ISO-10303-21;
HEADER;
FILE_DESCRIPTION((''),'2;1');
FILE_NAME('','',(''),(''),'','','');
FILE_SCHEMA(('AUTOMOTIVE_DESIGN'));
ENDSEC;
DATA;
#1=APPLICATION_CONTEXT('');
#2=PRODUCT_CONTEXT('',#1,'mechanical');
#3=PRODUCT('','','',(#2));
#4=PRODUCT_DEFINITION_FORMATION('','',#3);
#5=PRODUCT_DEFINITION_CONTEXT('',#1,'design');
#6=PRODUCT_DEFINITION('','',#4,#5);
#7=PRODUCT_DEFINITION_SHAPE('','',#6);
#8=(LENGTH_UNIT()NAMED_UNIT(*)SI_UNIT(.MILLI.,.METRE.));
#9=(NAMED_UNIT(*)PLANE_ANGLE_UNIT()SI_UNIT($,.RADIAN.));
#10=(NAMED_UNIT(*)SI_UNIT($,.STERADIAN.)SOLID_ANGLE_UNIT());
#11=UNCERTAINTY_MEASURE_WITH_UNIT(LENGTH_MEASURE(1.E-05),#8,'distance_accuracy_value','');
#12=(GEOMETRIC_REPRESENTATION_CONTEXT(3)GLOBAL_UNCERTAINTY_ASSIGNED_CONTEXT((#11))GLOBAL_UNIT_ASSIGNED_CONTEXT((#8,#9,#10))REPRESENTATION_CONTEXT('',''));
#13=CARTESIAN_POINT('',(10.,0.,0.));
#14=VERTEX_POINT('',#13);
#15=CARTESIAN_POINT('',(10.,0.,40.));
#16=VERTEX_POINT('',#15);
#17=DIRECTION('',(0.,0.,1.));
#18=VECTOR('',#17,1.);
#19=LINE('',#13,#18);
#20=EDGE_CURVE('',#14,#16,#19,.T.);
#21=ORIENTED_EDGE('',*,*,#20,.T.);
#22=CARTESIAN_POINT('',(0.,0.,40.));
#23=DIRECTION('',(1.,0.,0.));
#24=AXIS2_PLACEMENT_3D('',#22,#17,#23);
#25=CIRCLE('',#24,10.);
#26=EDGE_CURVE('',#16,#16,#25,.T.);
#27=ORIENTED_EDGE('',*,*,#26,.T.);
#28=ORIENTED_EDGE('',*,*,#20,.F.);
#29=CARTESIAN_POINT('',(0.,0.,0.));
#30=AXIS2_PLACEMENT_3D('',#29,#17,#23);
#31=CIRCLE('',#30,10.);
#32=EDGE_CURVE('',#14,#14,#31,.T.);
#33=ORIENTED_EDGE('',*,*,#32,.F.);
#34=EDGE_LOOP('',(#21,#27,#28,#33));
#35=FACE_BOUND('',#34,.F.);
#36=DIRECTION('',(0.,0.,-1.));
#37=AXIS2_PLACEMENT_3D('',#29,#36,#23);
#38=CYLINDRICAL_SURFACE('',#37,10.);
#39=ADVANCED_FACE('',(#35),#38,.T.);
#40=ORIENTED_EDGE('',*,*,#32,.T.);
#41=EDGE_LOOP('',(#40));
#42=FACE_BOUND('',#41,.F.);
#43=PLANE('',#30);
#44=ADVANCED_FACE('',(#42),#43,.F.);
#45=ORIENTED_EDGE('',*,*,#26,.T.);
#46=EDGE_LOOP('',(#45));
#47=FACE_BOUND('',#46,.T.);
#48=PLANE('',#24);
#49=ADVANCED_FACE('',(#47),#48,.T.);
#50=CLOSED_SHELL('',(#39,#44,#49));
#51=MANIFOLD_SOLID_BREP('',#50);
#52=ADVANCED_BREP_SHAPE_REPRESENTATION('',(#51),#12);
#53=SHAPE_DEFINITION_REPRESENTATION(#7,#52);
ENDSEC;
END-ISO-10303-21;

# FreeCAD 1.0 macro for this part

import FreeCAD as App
import Part
import Sketcher
Q = App.Units.Quantity

doc = App.newDocument("Part")
params = doc.addObject("Spreadsheet::Sheet", "Params")
for row, (alias, value) in enumerate([
    ("sketch1_diameter", "20 mm"),
    ("pad1_length", "40 mm"),
], start=1):
    params.set(f"A{row}", alias)
    params.set(f"B{row}", "=" + value)
    params.setAlias(f"B{row}", alias)

body = doc.addObject("PartDesign::Body", "Body")

sketch1 = doc.addObject("Sketcher::SketchObject", "Sketch")
body.addObject(sketch1)
sketch1.AttachmentSupport = (doc.XY_Plane, [""])
sketch1.MapMode = "FlatFace"
sketch1.addGeometry(Part.Circle(App.Vector(0, 0, 0), App.Vector(0, 0, 1), 10), False)
sketch1.addConstraint(Sketcher.Constraint("Coincident", 0, 3, -1, 1))
sketch1.addConstraint(Sketcher.Constraint("Diameter", 0, Q("20 mm")))
sketch1.setExpression("Constraints[1]", "Params.sketch1_diameter")
pad1 = doc.addObject("PartDesign::Pad", "Pad")
body.addObject(pad1)
pad1.Profile = sketch1
pad1.setExpression("Length", "Params.pad1_length")

doc.recompute()
